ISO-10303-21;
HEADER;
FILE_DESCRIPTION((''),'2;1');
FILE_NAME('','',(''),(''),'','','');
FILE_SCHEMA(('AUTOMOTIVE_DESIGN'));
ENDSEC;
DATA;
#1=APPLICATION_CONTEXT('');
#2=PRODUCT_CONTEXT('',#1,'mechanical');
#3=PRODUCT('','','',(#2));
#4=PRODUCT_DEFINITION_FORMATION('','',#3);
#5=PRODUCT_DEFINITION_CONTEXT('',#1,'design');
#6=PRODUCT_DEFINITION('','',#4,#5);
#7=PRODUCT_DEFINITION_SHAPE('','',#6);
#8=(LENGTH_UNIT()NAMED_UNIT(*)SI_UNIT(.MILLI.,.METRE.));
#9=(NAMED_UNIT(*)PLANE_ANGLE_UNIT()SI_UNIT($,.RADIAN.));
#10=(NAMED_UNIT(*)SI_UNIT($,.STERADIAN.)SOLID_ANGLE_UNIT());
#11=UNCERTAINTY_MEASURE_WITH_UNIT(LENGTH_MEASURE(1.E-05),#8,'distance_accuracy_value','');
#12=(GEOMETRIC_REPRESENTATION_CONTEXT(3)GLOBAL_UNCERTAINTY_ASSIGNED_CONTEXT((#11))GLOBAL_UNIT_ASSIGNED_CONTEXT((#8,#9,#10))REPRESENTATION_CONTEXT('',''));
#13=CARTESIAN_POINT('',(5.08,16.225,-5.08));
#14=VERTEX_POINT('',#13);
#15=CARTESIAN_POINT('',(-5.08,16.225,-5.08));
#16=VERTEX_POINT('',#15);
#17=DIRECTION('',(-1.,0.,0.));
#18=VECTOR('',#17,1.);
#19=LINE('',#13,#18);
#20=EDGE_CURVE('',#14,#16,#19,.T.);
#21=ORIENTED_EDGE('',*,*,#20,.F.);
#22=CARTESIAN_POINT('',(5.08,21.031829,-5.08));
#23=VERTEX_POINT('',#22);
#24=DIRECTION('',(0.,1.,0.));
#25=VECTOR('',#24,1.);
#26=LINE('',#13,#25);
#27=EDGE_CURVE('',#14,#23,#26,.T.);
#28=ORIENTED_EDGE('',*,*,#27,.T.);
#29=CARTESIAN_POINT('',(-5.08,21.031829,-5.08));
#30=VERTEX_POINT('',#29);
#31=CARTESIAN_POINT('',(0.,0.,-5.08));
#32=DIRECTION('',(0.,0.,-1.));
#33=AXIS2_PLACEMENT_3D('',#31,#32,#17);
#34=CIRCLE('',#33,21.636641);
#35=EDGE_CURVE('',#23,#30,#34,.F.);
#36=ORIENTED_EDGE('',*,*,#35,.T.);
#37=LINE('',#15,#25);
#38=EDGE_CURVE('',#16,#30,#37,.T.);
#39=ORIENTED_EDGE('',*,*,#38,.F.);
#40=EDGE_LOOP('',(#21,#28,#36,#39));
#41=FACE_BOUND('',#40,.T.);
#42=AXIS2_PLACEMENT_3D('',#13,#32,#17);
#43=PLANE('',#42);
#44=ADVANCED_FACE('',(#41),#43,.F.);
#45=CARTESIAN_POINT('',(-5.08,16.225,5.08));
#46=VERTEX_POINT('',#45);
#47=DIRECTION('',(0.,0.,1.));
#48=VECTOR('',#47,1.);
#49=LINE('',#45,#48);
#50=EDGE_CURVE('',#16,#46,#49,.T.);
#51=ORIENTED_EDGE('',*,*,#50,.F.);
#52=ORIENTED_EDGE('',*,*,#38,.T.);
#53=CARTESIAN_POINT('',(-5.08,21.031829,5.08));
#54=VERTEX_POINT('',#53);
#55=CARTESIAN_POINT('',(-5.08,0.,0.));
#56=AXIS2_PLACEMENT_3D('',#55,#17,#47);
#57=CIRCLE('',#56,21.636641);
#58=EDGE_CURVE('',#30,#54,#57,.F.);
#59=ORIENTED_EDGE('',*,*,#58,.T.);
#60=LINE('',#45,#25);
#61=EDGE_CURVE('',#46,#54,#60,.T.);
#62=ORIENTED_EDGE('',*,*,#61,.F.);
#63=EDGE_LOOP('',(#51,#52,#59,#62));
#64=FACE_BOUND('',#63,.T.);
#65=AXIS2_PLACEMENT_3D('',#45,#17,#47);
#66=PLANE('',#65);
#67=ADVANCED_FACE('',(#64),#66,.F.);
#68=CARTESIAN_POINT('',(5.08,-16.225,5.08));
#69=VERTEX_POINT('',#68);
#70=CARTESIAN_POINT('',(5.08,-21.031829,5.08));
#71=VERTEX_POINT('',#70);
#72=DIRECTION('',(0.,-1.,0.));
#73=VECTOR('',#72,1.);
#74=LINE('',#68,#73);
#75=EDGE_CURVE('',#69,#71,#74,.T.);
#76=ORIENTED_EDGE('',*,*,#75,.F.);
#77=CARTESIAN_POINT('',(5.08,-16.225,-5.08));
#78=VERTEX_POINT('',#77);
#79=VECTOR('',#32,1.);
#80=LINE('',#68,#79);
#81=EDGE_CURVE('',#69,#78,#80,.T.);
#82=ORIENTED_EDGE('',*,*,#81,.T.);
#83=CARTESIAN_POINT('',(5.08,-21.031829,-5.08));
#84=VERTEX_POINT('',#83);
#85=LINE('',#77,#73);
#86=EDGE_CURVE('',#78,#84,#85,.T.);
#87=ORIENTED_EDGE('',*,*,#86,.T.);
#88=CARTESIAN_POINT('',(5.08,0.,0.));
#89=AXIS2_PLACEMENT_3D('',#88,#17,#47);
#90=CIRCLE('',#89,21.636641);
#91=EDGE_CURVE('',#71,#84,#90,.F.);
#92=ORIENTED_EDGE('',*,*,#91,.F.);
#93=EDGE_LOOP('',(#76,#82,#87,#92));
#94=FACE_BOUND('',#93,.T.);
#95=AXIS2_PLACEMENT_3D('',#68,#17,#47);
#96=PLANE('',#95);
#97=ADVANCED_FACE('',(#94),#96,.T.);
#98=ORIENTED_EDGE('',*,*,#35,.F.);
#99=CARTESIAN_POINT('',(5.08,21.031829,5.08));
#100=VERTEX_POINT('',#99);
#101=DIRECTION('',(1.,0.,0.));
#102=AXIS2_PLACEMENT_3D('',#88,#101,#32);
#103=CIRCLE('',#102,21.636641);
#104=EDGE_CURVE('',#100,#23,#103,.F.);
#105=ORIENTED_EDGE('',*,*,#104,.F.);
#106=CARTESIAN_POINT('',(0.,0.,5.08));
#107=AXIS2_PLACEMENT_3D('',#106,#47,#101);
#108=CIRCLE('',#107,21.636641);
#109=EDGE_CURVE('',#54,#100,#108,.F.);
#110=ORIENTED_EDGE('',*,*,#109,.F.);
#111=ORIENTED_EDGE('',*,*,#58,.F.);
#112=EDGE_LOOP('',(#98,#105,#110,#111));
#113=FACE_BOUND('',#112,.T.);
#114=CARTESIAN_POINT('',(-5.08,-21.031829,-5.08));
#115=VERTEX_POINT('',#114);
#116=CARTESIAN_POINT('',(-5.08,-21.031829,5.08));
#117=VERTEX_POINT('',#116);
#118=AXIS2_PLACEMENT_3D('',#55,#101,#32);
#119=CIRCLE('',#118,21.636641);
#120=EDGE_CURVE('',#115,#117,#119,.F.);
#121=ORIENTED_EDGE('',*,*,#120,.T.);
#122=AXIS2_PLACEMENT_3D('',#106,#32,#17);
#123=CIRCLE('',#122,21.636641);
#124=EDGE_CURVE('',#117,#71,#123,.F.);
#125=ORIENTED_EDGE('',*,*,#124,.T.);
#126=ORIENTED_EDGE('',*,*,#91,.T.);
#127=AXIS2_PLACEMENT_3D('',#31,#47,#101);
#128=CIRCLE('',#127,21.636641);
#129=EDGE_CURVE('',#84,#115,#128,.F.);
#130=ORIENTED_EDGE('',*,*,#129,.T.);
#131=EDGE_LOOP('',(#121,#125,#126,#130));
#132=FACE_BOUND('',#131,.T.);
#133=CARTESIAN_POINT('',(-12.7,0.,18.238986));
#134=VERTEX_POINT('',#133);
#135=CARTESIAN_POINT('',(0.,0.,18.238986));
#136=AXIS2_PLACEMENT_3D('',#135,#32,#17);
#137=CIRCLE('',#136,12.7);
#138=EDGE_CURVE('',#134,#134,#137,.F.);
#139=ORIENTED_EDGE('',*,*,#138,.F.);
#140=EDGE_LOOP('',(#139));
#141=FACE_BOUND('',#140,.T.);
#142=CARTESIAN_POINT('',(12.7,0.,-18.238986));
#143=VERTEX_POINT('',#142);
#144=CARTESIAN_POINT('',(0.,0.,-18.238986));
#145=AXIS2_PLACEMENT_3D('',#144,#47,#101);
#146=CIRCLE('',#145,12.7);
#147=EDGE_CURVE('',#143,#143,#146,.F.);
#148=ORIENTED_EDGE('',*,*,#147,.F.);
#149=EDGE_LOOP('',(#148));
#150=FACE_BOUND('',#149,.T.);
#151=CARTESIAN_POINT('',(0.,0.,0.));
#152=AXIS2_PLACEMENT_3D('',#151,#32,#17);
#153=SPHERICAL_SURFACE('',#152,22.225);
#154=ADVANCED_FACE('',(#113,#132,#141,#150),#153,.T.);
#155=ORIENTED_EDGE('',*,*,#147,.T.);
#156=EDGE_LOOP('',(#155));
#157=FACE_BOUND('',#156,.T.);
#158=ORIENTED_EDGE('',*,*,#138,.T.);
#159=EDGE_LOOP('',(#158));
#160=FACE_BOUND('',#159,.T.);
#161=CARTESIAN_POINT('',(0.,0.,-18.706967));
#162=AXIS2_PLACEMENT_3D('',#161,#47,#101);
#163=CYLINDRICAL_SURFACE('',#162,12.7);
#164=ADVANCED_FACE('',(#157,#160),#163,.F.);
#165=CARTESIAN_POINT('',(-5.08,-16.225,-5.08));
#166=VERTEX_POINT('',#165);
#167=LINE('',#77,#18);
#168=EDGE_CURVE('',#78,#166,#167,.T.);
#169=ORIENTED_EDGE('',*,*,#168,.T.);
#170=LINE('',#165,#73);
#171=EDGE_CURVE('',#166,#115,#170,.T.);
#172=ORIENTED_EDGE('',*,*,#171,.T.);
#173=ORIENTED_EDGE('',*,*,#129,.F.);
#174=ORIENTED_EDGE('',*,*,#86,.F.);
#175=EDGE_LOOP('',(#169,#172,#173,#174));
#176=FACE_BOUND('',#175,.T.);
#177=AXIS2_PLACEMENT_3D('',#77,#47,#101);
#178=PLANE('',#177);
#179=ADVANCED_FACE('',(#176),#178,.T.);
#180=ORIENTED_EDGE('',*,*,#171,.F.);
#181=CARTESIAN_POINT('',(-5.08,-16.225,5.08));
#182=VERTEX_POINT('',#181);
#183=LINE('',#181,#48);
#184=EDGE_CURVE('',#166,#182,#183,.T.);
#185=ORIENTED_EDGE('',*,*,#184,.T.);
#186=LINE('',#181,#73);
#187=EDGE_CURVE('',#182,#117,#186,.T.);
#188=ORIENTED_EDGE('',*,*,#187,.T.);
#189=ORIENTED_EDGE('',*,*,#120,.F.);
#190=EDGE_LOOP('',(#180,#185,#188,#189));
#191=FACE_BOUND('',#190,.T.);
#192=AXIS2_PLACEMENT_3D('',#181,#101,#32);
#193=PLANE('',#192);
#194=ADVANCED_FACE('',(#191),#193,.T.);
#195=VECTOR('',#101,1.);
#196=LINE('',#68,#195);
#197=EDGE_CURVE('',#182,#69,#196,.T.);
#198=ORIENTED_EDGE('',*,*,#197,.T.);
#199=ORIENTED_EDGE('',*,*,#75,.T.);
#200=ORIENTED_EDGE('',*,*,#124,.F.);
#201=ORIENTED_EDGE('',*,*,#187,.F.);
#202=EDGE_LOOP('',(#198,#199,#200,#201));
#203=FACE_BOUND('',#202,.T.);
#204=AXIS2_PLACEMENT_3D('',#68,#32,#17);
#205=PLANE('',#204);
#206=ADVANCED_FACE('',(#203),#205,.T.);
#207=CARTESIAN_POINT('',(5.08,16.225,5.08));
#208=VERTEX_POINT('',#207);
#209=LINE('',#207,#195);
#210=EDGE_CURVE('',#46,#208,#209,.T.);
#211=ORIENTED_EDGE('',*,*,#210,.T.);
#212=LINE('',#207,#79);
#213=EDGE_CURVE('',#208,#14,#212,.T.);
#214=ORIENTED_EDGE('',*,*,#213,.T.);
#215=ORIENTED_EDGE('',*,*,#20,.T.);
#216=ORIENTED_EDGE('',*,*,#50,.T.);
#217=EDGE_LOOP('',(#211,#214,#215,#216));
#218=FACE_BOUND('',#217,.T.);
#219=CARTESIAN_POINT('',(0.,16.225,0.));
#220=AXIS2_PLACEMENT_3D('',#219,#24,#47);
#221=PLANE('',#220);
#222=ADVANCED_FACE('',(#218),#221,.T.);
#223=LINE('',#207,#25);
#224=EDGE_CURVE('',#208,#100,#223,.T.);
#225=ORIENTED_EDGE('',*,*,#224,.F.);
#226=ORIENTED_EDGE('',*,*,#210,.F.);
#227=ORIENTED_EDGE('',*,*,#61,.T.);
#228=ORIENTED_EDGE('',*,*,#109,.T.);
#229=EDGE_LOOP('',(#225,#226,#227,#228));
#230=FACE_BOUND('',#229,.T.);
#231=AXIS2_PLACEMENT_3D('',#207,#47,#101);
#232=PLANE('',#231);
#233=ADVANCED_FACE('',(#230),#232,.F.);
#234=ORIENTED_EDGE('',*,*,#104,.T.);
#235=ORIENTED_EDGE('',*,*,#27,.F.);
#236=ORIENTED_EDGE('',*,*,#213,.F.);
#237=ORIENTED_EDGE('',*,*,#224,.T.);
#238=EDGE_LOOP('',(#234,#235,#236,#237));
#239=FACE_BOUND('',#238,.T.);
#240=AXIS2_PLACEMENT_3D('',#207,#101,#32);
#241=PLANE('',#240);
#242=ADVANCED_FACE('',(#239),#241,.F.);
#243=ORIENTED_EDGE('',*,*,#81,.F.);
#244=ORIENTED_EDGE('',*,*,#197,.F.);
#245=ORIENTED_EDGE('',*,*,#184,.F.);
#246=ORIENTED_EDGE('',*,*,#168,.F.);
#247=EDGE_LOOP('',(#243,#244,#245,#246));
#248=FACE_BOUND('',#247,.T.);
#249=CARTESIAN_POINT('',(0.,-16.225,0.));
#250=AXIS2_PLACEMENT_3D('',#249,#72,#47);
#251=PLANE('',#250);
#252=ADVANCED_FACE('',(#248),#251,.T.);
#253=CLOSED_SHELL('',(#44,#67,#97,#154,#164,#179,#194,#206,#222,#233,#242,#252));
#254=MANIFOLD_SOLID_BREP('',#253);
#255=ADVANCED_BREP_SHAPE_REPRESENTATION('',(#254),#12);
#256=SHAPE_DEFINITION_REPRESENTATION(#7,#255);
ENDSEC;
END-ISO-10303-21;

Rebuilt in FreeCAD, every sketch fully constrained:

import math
import FreeCAD as App
import Part
import Sketcher
Q = App.Units.Quantity

doc = App.newDocument("Part")
body = doc.addObject("PartDesign::Body", "Body")

# Sketch on XZ plane
sketch1 = doc.addObject("Sketcher::SketchObject", "Sketch")
body.addObject(sketch1)
sketch1.AttachmentSupport = (doc.XZ_Plane, [""])
sketch1.MapMode = "FlatFace"
sketch1.addGeometry([
    Part.LineSegment(App.Vector(0, -19, 0), App.Vector(-12, -19, 0)),
    Part.ArcOfCircle(Part.Circle(App.Vector(0, 0, 0), App.Vector(0, 0, 1), 22), math.radians(123), math.radians(237)),
    Part.LineSegment(App.Vector(-12, 19, 0), App.Vector(0, 19, 0)),
    Part.LineSegment(App.Vector(0, 19, 0), App.Vector(0, -19, 0)),
], False)
sketch1.addConstraint([
    Sketcher.Constraint("Coincident", 0, 2, 1, 2),
    Sketcher.Constraint("Coincident", 1, 1, 2, 1),
    Sketcher.Constraint("Coincident", 2, 2, 3, 1),
    Sketcher.Constraint("Coincident", 3, 2, 0, 1),
    Sketcher.Constraint("Horizontal", 0),
    Sketcher.Constraint("Horizontal", 2),
    Sketcher.Constraint("Vertical", 3),
    Sketcher.Constraint("Coincident", 1, 3, -1, 1),
    Sketcher.Constraint("Symmetric", 2, 2, 3, 2, -1, 1),
    Sketcher.Constraint("Radius", 1, Q("0.875 in")),
    Sketcher.Constraint("DistanceX", 0, 2, 0, 1, Q("12 mm")),
])
revolution = doc.addObject("PartDesign::Revolution", "Revolution")
body.addObject(revolution)
revolution.Profile = sketch1
revolution.ReferenceAxis = (sketch1, ["V_Axis"])
revolution.Angle = 360

# Sketch on XY plane
sketch2 = doc.addObject("Sketcher::SketchObject", "Sketch001")
body.addObject(sketch2)
sketch2.AttachmentSupport = (doc.XY_Plane, [""])
sketch2.MapMode = "FlatFace"
sketch2.AttachmentOffset = App.Placement(App.Vector(0, 0, 18.706967), App.Rotation())
sketch2.addGeometry(Part.Circle(App.Vector(0, 0, 0), App.Vector(0, 0, 1), 13), False)
sketch2.addConstraint([
    Sketcher.Constraint("Coincident", 0, 3, -1, 1),
    Sketcher.Constraint("Diameter", 0, Q("1 in")),
])
pocket1 = doc.addObject("PartDesign::Pocket", "Pocket")
body.addObject(pocket1)
pocket1.Profile = sketch2
pocket1.Type = "ThroughAll"

# Sketch on XZ plane
sketch3 = doc.addObject("Sketcher::SketchObject", "Sketch002")
body.addObject(sketch3)
sketch3.AttachmentSupport = (doc.XZ_Plane, [""])
sketch3.MapMode = "FlatFace"
sketch3.AttachmentOffset = App.Placement(App.Vector(0, 0, -0.875 * 25.4), App.Rotation())
sketch3.addGeometry([
    Part.LineSegment(App.Vector(-5, -5, 0), App.Vector(-5, 5, 0)),
    Part.LineSegment(App.Vector(-5, 5, 0), App.Vector(5, 5, 0)),
    Part.LineSegment(App.Vector(5, 5, 0), App.Vector(5, -5, 0)),
    Part.LineSegment(App.Vector(5, -5, 0), App.Vector(-5, -5, 0)),
], False)
sketch3.addConstraint([
    Sketcher.Constraint("Coincident", 0, 2, 1, 1),
    Sketcher.Constraint("Coincident", 1, 2, 2, 1),
    Sketcher.Constraint("Coincident", 2, 2, 3, 1),
    Sketcher.Constraint("Coincident", 3, 2, 0, 1),
    Sketcher.Constraint("Vertical", 0),
    Sketcher.Constraint("Horizontal", 1),
    Sketcher.Constraint("Vertical", 2),
    Sketcher.Constraint("Horizontal", 3),
    Sketcher.Constraint("Symmetric", 0, 2, 2, 2, -1, 1),
    Sketcher.Constraint("Equal", 3, 0),
    Sketcher.Constraint("DistanceX", 1, 1, 1, 2, Q("0.4 in")),
])
pocket2 = doc.addObject("PartDesign::Pocket", "Pocket001")
body.addObject(pocket2)
pocket2.Profile = sketch3
pocket2.Length = 6
pocket2.Reversed = True
doc.recompute()

mirrored = doc.addObject("PartDesign::Mirrored", "Mirrored")
body.addObject(mirrored)
mirrored.Originals = [pocket2]
mirrored.MirrorPlane = (doc.XZ_Plane, [""])
body.Tip = mirrored

doc.recompute()
